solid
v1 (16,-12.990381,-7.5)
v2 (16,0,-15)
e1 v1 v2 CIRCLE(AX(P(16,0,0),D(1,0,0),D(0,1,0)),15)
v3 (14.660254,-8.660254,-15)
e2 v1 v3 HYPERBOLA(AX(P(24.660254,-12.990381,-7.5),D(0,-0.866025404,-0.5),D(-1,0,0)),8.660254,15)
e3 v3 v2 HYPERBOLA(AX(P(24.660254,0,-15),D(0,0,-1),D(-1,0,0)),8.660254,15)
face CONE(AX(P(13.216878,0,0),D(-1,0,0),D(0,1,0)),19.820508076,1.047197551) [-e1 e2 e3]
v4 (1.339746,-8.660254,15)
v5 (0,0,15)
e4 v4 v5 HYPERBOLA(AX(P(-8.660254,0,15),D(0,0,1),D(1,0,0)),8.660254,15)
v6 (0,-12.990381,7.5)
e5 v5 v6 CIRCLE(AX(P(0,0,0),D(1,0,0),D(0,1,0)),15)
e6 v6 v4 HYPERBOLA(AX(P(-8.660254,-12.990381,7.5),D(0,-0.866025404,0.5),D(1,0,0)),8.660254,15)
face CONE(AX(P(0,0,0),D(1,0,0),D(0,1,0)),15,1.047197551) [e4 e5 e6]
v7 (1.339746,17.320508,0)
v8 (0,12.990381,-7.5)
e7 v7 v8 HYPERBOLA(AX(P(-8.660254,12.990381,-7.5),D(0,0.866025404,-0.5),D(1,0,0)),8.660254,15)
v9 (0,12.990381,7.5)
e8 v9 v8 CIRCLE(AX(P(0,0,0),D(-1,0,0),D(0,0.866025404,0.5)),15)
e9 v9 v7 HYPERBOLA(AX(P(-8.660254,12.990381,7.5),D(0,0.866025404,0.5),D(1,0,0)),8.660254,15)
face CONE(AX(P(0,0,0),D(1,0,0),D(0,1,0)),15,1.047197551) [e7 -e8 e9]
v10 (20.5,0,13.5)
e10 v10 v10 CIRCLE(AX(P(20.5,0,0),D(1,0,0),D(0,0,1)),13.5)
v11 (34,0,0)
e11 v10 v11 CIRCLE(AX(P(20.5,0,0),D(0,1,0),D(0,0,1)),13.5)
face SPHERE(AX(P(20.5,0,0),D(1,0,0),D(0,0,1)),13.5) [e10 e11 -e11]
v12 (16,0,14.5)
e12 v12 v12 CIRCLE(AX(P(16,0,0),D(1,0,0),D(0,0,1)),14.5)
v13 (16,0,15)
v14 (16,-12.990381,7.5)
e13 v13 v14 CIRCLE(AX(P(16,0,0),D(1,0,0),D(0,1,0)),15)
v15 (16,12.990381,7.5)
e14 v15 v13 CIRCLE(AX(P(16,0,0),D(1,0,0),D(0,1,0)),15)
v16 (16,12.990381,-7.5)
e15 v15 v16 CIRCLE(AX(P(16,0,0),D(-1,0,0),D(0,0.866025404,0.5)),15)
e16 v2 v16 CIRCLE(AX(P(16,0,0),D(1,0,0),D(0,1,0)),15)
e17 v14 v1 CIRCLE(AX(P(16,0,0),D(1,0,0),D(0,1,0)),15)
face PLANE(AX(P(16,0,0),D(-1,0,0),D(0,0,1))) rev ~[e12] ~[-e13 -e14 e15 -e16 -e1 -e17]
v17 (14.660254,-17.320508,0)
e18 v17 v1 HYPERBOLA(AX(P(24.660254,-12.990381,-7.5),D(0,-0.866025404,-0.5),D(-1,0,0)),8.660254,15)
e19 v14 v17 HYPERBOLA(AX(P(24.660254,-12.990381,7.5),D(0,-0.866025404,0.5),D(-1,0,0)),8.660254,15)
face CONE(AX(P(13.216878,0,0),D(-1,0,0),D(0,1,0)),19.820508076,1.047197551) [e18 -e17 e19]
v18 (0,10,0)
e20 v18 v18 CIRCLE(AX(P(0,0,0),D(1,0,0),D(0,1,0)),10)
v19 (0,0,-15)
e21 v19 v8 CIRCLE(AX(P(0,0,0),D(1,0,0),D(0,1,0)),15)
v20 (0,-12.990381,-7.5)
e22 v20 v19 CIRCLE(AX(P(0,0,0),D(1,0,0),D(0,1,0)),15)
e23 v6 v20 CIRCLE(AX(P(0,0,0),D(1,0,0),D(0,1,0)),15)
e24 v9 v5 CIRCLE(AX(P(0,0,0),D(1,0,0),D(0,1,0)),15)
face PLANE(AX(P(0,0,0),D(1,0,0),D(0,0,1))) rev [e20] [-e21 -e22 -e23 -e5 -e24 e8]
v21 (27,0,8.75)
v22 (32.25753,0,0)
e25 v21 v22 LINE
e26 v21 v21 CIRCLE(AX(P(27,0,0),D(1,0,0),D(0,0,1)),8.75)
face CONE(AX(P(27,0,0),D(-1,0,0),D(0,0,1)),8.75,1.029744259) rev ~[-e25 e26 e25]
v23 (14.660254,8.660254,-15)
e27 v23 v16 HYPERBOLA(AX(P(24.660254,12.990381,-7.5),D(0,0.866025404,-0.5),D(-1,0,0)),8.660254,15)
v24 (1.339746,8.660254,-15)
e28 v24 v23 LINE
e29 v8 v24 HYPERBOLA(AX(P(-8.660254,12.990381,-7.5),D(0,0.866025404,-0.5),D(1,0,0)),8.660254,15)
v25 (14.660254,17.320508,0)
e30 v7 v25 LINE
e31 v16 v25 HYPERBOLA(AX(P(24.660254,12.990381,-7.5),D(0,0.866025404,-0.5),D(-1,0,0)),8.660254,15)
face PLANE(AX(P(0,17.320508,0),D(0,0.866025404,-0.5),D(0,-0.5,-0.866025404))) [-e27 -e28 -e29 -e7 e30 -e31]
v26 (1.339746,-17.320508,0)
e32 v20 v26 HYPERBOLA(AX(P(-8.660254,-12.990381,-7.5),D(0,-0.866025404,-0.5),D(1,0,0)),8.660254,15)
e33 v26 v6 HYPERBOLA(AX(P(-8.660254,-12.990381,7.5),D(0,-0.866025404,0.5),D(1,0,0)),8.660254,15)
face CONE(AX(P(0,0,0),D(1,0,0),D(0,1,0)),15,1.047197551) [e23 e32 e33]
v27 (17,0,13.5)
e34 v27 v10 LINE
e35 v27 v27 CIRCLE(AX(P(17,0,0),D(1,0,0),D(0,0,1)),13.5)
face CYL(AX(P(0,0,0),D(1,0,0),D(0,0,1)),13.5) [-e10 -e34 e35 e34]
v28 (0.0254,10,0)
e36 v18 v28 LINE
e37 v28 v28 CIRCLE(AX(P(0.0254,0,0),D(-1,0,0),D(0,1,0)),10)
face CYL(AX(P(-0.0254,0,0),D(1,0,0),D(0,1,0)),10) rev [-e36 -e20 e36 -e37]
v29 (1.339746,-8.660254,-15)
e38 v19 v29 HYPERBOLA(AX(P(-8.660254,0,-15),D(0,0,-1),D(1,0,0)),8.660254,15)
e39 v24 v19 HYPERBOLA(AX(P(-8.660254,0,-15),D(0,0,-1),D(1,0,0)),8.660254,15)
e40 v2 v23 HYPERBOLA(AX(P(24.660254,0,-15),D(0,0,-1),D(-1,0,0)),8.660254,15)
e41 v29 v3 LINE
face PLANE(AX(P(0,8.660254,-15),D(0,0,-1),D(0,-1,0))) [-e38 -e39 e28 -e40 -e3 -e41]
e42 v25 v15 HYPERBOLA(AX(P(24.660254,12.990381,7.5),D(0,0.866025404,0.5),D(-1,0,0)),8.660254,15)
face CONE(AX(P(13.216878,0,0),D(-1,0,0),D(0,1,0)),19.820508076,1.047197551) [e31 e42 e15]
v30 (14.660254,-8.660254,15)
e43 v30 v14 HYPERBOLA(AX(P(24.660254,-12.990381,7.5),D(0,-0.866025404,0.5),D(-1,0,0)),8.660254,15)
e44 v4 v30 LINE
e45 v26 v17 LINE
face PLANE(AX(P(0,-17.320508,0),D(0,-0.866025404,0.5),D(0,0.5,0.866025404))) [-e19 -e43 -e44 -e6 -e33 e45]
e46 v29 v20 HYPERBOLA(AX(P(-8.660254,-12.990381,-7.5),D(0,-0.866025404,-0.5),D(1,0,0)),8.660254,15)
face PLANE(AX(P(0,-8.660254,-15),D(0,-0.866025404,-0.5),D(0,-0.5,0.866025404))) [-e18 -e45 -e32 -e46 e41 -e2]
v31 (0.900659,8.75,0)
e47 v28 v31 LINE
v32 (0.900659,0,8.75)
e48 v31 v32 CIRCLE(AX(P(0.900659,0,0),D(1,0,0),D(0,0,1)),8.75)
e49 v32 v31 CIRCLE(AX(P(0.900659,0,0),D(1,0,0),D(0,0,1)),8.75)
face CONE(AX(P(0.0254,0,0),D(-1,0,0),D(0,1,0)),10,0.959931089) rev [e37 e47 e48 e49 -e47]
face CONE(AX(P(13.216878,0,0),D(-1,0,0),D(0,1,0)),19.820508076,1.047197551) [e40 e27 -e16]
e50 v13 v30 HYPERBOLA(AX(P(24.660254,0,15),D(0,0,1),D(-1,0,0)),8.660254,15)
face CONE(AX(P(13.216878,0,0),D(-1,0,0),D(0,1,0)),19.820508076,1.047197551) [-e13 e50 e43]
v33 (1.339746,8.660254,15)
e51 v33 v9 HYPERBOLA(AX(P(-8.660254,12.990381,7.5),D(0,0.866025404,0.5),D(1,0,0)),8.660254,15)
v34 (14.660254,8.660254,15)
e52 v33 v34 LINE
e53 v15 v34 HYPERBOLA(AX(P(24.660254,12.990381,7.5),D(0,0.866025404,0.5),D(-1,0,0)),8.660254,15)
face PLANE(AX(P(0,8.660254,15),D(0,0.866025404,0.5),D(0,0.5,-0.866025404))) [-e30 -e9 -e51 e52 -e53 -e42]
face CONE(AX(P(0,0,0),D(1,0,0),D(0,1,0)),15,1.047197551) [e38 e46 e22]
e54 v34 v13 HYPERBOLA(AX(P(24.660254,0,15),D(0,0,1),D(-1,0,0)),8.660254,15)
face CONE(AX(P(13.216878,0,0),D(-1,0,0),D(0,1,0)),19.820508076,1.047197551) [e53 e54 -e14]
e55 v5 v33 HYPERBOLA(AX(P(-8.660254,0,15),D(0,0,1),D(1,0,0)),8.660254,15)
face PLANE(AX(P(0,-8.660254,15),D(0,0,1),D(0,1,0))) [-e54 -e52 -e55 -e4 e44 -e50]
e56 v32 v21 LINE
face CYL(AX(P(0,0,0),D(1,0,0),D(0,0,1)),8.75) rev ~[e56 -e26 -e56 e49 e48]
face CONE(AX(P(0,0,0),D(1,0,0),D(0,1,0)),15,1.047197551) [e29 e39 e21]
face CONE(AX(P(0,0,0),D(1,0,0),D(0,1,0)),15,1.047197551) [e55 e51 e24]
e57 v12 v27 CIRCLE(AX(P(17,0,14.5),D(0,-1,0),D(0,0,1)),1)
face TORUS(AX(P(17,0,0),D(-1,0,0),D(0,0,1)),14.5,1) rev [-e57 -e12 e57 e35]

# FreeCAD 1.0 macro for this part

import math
import FreeCAD as App
import Part
import Sketcher

V = App.Vector
Q = App.Units.Quantity


def edges_at(feature, points):
    """Names of the edges that pass closest to the given points."""
    edges = feature.Shape.Edges
    near = lambda p: min(range(len(edges)), key=lambda i: edges[i].distToShape(Part.Vertex(*p))[0])
    return sorted({f"Edge{near(p) + 1}" for p in points})


def add_polygon(sketch, points):
    """Adds a closed chain of lines whose ends are joined by coincident constraints."""
    first, n = sketch.GeometryCount, len(points)
    for a, b in zip(points, points[1:] + points[:1]):
        sketch.addGeometry(Part.LineSegment(App.Vector(*a, 0), App.Vector(*b, 0)), False)
    for i in range(n):
        sketch.addConstraint(Sketcher.Constraint("Coincident", first + i, 2, first + (i + 1) % n, 1))

doc = App.newDocument("Part")
body = doc.addObject("PartDesign::Body", "Body")

# Sketch on YZ plane
sketch1 = body.newObject("Sketcher::SketchObject", "Sketch")
sketch1.AttachmentSupport = (doc.getObject("YZ_Plane"), [""])
sketch1.MapMode = "FlatFace"
add_polygon(sketch1, [(-9, -15), (9, -15), (17, 0), (9, 15), (-9, 15), (-17, 0)])  # lines 0-5
sketch1.addConstraint([
    Sketcher.Constraint("Horizontal", 0),
    Sketcher.Constraint("Horizontal", 3),
    Sketcher.Constraint("Symmetric", 0, 2, 3, 2, -1, 1),
    Sketcher.Constraint("Symmetric", 1, 2, 4, 2, -1, 1),
    Sketcher.Constraint("PointOnObject", 1, 2, -1),
    Sketcher.Constraint("Parallel", 2, 5),
    Sketcher.Constraint("Vertical", 0, 2, 2, 2),
    Sketcher.Constraint("Angle", 1, Q("60 deg")),
    Sketcher.Constraint("DistanceY", 0, 2, -1, 1, 15.0),
    Sketcher.Constraint("DistanceX", 0, 1, 0, 2, 17.320508),
])
pad1 = body.newObject("PartDesign::Pad", "Pad")
pad1.Profile = sketch1
pad1.Length = 16

# Sketch on XY plane
sketch2 = body.newObject("Sketcher::SketchObject", "Sketch001")
sketch2.AttachmentSupport = (doc.getObject("XY_Plane"), [""])
sketch2.MapMode = "FlatFace"
sketch2.addGeometry([
    Part.LineSegment(V(0, 0, 0), V(34, 0, 0)),
    Part.ArcOfCircle(Part.Circle(V(20, 0, 0), V(0, 0, 1), 14), math.radians(0), math.radians(90)),
    Part.LineSegment(V(20, 14, 0), V(0, 14, 0)),
    Part.LineSegment(V(0, 14, 0), V(0, 0, 0)),
], False)
sketch2.addConstraint([
    Sketcher.Constraint("Coincident", 0, 2, 1, 1),
    Sketcher.Constraint("Tangent", 1, 2, 2, 1),
    Sketcher.Constraint("Coincident", 2, 2, 3, 1),
    Sketcher.Constraint("Coincident", 3, 2, 0, 1),
    Sketcher.Constraint("Horizontal", 0),
    Sketcher.Constraint("Horizontal", 2),
    Sketcher.Constraint("Vertical", 3),
    Sketcher.Constraint("Coincident", 3, 2, -1, 1),
    Sketcher.Constraint("PointOnObject", 1, 3, -1),
    Sketcher.Constraint("Radius", 1, 13.5),
    Sketcher.Constraint("DistanceX", 0, 1, 0, 2, 34.0),
])
revolution = body.newObject("PartDesign::Revolution", "Revolution")
revolution.Profile = sketch2
revolution.ReferenceAxis = (sketch2, ["H_Axis"])
revolution.Angle = 360

# Sketch on XY plane
sketch3 = body.newObject("Sketcher::SketchObject", "Sketch002")
sketch3.AttachmentSupport = (doc.getObject("XY_Plane"), [""])
sketch3.MapMode = "FlatFace"
add_polygon(sketch3, [(0, 15), (2.8, 19.8), (13.2, 19.8), (16, 15), (18, 15), (18, 30), (-2, 30), (-2, 15)])  # lines 0-7
sketch3.addConstraint([
    Sketcher.Constraint("Horizontal", 1),
    Sketcher.Constraint("Horizontal", 3),
    Sketcher.Constraint("Vertical", 4),
    Sketcher.Constraint("Horizontal", 5),
    Sketcher.Constraint("Vertical", 6),
    Sketcher.Constraint("Horizontal", 7),
    Sketcher.Constraint("PointOnObject", 7, 2, -2),
    Sketcher.Constraint("Horizontal", 3, 2, 6, 2),
    Sketcher.Constraint("Equal", 3, 7),
    Sketcher.Constraint("Equal", 0, 2),
    Sketcher.Constraint("DistanceX", 3, 1, 3, 2, 2.0),
    Sketcher.Constraint("DistanceX", 5, 2, 5, 1, 20.0),
    Sketcher.Constraint("DistanceY", 4, 1, 4, 2, 15.0),
    Sketcher.Constraint("Angle", 0, Q("60 deg")),
    Sketcher.Constraint("DistanceY", -1, 1, 2, 2, 15.0),
    Sketcher.Constraint("DistanceX", 1, 1, 1, 2, 10.433757),
])
groove = body.newObject("PartDesign::Groove", "Groove")
groove.Profile = sketch3
groove.ReferenceAxis = (sketch3, ["H_Axis"])
groove.Angle = 360

# Sketch on XY plane
sketch4 = body.newObject("Sketcher::SketchObject", "Sketch003")
sketch4.AttachmentSupport = (doc.getObject("XY_Plane"), [""])
sketch4.MapMode = "FlatFace"
add_polygon(sketch4, [(27, 9), (0, 9), (0, 0), (32, 0)])  # lines 0-3
sketch4.addConstraint([
    Sketcher.Constraint("Horizontal", 0),
    Sketcher.Constraint("Vertical", 1),
    Sketcher.Constraint("Horizontal", 2),
    Sketcher.Constraint("Coincident", 1, 2, -1, 1),
    Sketcher.Constraint("DistanceX", 0, 2, 0, 1, 27.0),
    Sketcher.Constraint("Angle", 3, Q("121 deg")),
    Sketcher.Constraint("DistanceY", 1, 2, 1, 1, 8.75),
])
groove2 = body.newObject("PartDesign::Groove", "Groove001")
groove2.Profile = sketch4
groove2.ReferenceAxis = (sketch4, ["H_Axis"])
groove2.Angle = 360

# Sketch on XY plane
sketch5 = body.newObject("Sketcher::SketchObject", "Sketch004")
sketch5.AttachmentSupport = (doc.getObject("XY_Plane"), [""])
sketch5.MapMode = "FlatFace"
add_polygon(sketch5, [(0.03, 10), (-0.03, 10), (-0.03, 8.62), (0.99, 8.62)])  # lines 0-3
sketch5.addConstraint([
    Sketcher.Constraint("Horizontal", 0),
    Sketcher.Constraint("Vertical", 1),
    Sketcher.Constraint("Horizontal", 2),
    Sketcher.Constraint("Angle", 3, Q("125 deg")),
    Sketcher.Constraint("DistanceY", -1, 1, 0, 2, 10.0),
    Sketcher.Constraint("DistanceY", 1, 2, 1, 1, 1.375),
    Sketcher.Constraint("DistanceX", 0, 2, 0, 1, 0.0508),
    Sketcher.Constraint("DistanceX", 0, 2, -1, 1, 0.0254),
])
groove3 = body.newObject("PartDesign::Groove", "Groove002")
groove3.Profile = sketch5
groove3.ReferenceAxis = (sketch5, ["H_Axis"])
groove3.Angle = 360
doc.recompute()

fillet = body.newObject("PartDesign::Fillet", "Fillet")
fillet.Base = (groove3, edges_at(groove3, [(16, 0, -13.5)]))
fillet.Radius = 1

doc.recompute()
